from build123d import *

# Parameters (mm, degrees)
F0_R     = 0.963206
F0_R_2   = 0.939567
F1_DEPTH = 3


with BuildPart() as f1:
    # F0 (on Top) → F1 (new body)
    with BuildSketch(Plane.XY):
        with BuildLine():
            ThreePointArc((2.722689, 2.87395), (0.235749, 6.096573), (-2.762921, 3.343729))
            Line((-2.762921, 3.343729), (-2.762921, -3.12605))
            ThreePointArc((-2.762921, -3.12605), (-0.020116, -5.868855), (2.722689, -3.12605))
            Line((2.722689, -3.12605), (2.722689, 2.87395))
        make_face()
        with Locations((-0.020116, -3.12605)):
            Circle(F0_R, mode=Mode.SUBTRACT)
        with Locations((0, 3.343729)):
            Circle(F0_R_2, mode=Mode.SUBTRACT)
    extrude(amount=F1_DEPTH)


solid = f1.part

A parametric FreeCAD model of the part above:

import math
import FreeCAD as App
import Part
import Sketcher

doc = App.newDocument("Part")
body = doc.addObject("PartDesign::Body", "Body")

# Sketch on XY plane
sketch1 = doc.addObject("Sketcher::SketchObject", "Sketch")
body.addObject(sketch1)
sketch1.AttachmentSupport = (doc.XY_Plane, [""])
sketch1.MapMode = "FlatFace"
sketch1.addGeometry(Part.ArcOfCircle(Part.Circle(App.Vector(0, 3.343729, 0), App.Vector(0, 0, 1), 2.762921), math.radians(-9.789548), math.radians(179.999993)), False)
sketch1.addGeometry(Part.LineSegment(App.Vector(-2.762921, 3.343729, 0), App.Vector(-2.762921, -3.12605, 0)), False)
sketch1.addGeometry(Part.ArcOfCircle(Part.Circle(App.Vector(-0.020116, -3.12605, 0), App.Vector(0, 0, 1), 2.742805), math.radians(180), math.radians(360)), False)
sketch1.addGeometry(Part.LineSegment(App.Vector(2.722689, -3.12605, 0), App.Vector(2.722689, 2.87395, 0)), False)
sketch1.addGeometry(Part.Circle(App.Vector(-0.020116, -3.12605, 0), App.Vector(0, 0, 1), 0.963206), False)
sketch1.addGeometry(Part.Circle(App.Vector(0, 3.343729, 0), App.Vector(0, 0, 1), 0.939567), False)
sketch1.addConstraint(Sketcher.Constraint("Tangent", 0, 2, 1, 1))
sketch1.addConstraint(Sketcher.Constraint("Tangent", 1, 2, 2, 1))
sketch1.addConstraint(Sketcher.Constraint("Tangent", 2, 2, 3, 1))
sketch1.addConstraint(Sketcher.Constraint("Coincident", 3, 2, 0, 1))
sketch1.addConstraint(Sketcher.Constraint("Vertical", 1))
sketch1.addConstraint(Sketcher.Constraint("Vertical", 3))
sketch1.addConstraint(Sketcher.Constraint("Coincident", 4, 3, 2, 3))
sketch1.addConstraint(Sketcher.Constraint("Coincident", 5, 3, 0, 3))
sketch1.addConstraint(Sketcher.Constraint("PointOnObject", 0, 3, -2))
sketch1.addConstraint(Sketcher.Constraint("DistanceY", 3, 1, 3, 2, 6.0))
sketch1.addConstraint(Sketcher.Constraint("Radius", 0, 2.762921))
sketch1.addConstraint(Sketcher.Constraint("Diameter", 4, 1.926412))
sketch1.addConstraint(Sketcher.Constraint("Diameter", 5, 1.879134))
sketch1.addConstraint(Sketcher.Constraint("Radius", 2, 2.742805))
sketch1.addConstraint(Sketcher.Constraint("DistanceY", -1, 1, 0, 3, 3.343729))
pad1 = doc.addObject("PartDesign::Pad", "Pad")
body.addObject(pad1)
pad1.Profile = sketch1
pad1.Length = 3

doc.recompute()
